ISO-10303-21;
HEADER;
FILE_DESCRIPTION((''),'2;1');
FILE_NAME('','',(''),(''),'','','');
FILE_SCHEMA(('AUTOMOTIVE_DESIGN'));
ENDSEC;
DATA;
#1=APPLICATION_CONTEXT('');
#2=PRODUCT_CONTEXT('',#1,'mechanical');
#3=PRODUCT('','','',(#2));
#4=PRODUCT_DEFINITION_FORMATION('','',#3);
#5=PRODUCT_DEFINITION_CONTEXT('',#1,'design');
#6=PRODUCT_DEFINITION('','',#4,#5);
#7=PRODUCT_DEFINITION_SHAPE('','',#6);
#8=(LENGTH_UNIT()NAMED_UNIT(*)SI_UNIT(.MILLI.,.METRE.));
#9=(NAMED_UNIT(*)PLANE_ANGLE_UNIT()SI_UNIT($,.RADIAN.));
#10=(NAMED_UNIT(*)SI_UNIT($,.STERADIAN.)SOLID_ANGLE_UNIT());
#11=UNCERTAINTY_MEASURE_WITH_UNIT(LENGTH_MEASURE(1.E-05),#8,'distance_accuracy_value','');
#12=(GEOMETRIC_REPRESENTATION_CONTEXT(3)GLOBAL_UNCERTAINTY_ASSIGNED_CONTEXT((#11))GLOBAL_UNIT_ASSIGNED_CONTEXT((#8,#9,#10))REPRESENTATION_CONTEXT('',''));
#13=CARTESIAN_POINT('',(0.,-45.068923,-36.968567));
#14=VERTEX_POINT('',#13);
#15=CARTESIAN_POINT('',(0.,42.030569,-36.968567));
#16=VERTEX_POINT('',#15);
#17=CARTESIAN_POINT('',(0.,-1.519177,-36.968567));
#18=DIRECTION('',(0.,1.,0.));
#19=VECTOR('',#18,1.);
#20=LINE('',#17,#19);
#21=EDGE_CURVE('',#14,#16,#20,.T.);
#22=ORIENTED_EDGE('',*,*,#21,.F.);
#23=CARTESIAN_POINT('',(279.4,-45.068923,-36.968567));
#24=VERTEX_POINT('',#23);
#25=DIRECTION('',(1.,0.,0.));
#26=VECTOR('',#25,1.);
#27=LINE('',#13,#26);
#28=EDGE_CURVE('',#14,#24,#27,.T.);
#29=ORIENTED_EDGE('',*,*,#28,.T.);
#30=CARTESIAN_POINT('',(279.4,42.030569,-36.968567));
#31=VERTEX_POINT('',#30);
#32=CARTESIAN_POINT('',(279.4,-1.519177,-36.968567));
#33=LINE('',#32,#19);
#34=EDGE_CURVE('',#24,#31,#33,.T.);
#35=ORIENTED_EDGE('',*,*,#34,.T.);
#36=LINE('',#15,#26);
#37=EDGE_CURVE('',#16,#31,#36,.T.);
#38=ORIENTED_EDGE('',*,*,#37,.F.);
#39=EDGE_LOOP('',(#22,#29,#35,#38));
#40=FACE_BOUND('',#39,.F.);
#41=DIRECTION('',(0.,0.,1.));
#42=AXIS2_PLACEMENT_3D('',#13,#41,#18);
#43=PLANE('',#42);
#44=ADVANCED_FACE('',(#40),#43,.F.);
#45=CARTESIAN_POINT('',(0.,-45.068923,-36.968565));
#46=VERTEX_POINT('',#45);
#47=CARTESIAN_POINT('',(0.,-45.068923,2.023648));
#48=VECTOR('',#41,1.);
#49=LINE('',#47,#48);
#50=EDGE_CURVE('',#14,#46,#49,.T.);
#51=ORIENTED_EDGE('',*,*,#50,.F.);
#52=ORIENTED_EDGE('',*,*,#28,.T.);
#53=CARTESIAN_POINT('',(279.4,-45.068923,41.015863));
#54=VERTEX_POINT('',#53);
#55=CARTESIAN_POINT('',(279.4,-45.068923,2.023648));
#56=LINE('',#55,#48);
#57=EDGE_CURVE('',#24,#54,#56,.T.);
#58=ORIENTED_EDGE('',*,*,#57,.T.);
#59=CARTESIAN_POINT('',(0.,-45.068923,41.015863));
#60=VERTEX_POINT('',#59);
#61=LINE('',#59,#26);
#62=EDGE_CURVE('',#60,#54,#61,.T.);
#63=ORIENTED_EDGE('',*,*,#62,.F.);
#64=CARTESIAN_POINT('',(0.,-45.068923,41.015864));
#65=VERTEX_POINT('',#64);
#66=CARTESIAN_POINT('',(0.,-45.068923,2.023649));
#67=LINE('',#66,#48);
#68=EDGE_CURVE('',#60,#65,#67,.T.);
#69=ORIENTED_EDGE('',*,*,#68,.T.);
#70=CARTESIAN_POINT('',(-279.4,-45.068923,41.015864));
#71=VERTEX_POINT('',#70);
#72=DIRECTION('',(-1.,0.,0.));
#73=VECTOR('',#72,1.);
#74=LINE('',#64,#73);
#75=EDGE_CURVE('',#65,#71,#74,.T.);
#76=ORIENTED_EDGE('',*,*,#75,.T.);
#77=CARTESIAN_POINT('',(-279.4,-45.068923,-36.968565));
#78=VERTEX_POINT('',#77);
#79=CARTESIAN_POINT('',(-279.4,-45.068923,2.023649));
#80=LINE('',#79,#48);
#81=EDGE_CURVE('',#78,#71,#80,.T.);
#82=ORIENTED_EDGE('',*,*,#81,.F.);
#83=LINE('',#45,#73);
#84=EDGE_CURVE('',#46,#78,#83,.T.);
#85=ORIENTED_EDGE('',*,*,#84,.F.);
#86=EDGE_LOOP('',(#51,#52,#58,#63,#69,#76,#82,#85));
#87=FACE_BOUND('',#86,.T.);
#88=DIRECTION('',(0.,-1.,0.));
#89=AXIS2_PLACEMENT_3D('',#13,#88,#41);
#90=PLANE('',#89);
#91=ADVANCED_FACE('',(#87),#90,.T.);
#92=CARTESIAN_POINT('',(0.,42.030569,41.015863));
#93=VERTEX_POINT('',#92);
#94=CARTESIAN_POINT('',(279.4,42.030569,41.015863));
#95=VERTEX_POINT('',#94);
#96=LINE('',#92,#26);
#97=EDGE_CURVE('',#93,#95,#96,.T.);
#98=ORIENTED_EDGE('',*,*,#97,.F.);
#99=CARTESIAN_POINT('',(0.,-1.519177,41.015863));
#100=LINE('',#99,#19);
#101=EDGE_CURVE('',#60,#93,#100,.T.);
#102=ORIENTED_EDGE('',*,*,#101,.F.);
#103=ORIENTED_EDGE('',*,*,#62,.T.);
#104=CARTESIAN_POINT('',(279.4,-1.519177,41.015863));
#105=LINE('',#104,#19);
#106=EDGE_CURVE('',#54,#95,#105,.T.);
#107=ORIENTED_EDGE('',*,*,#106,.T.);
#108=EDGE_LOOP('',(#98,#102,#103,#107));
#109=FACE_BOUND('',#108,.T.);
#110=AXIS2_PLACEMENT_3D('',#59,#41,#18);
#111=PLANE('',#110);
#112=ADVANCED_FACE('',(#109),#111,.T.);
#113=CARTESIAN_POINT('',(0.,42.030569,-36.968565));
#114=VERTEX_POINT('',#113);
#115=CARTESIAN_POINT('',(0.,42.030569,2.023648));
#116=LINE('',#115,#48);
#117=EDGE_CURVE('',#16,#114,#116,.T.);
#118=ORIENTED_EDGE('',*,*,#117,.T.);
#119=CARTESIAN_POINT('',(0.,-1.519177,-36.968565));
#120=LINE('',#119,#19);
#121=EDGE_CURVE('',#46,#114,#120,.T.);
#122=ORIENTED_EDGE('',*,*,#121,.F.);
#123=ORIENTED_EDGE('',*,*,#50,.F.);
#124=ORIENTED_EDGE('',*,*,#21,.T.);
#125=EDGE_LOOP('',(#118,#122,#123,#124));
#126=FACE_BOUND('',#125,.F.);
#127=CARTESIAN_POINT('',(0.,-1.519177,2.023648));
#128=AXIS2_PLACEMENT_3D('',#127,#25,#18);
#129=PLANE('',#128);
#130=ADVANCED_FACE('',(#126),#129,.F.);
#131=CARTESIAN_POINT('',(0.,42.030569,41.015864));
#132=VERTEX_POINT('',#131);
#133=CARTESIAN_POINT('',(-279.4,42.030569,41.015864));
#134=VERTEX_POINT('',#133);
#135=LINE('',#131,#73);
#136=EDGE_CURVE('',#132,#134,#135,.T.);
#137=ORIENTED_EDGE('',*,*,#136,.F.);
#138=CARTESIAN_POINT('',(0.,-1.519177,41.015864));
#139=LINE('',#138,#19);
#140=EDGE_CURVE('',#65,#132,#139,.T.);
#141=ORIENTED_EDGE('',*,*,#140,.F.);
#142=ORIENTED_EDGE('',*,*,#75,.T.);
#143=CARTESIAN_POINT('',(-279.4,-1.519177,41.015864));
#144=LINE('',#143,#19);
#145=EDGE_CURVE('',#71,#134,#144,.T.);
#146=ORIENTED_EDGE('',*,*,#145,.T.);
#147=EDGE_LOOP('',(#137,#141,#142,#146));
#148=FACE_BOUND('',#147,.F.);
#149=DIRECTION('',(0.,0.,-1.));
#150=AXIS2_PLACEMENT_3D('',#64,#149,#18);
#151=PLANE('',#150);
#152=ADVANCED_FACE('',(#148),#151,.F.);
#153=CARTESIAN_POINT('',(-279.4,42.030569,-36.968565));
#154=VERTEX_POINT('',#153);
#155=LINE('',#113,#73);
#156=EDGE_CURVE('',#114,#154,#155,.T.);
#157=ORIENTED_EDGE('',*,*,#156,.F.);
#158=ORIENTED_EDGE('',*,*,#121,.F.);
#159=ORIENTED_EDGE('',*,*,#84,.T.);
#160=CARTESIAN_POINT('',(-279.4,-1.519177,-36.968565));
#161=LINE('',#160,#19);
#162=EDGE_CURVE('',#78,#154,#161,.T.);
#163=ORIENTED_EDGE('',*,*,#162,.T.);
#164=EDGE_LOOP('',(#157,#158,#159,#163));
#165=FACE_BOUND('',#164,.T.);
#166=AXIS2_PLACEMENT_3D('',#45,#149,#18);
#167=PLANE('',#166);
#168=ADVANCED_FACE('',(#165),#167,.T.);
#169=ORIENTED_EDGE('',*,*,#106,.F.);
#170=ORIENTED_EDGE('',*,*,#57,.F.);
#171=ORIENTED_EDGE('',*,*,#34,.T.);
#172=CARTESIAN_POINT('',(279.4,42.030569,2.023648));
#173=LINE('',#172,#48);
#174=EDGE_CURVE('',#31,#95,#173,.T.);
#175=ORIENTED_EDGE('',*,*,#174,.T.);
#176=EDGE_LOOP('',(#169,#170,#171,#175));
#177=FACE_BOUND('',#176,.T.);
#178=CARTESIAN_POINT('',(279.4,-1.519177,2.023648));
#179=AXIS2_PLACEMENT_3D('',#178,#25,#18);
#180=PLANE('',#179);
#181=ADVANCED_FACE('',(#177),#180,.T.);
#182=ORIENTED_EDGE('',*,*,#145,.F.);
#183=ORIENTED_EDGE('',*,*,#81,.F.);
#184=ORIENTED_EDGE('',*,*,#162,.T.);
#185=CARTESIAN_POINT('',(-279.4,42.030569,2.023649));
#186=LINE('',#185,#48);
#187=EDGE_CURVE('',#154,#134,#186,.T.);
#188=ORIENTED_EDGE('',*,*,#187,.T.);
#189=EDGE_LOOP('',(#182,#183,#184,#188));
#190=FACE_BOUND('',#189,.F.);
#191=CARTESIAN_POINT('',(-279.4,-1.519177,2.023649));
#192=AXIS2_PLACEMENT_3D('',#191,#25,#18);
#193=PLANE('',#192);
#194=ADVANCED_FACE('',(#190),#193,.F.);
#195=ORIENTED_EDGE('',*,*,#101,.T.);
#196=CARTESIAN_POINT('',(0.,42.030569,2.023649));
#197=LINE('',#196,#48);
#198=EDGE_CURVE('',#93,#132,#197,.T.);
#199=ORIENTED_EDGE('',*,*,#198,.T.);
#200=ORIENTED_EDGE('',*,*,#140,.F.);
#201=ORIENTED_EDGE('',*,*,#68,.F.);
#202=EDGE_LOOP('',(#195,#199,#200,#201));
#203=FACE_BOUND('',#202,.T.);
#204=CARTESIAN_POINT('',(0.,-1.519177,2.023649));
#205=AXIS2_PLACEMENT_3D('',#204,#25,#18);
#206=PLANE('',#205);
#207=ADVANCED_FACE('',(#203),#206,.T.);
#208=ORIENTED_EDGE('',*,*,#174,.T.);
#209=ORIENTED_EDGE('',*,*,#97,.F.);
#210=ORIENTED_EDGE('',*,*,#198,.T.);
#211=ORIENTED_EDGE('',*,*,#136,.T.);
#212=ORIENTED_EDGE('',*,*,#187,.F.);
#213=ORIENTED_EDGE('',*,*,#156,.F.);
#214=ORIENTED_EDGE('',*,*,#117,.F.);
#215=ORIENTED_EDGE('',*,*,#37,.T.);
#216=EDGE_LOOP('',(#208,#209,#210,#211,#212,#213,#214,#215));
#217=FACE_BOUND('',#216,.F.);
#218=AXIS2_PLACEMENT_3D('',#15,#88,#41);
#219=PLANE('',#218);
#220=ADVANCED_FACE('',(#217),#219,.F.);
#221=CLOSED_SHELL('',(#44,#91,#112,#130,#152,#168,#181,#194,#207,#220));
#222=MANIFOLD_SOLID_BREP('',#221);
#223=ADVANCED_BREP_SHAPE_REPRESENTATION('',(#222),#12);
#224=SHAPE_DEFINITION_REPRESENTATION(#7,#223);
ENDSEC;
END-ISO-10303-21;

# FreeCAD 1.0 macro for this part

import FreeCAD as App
import Part
import Sketcher
Q = App.Units.Quantity

doc = App.newDocument("Part")
body = doc.addObject("PartDesign::Body", "Body")

# Sketch on YZ plane
sketch1 = body.newObject("Sketcher::SketchObject", "Sketch")
sketch1.AttachmentSupport = (doc.getObject("YZ_Plane"), [""])
sketch1.MapMode = "FlatFace"
sketch1.addGeometry([
    Part.LineSegment(App.Vector(-45, 41, 0), App.Vector(-45, -37, 0)),
    Part.LineSegment(App.Vector(-45, -37, 0), App.Vector(42, -37, 0)),
    Part.LineSegment(App.Vector(42, -37, 0), App.Vector(42, 41, 0)),
    Part.LineSegment(App.Vector(42, 41, 0), App.Vector(-45, 41, 0)),
], False)
sketch1.addConstraint([
    Sketcher.Constraint("Coincident", 0, 2, 1, 1),
    Sketcher.Constraint("Coincident", 1, 2, 2, 1),
    Sketcher.Constraint("Coincident", 2, 2, 3, 1),
    Sketcher.Constraint("Coincident", 3, 2, 0, 1),
    Sketcher.Constraint("Vertical", 0),
    Sketcher.Constraint("Horizontal", 1),
    Sketcher.Constraint("Vertical", 2),
    Sketcher.Constraint("Horizontal", 3),
    Sketcher.Constraint("DistanceX", 1, 1, 1, 2, 87.099492),
    Sketcher.Constraint("DistanceY", 0, 2, 0, 1, 77.984429),
    Sketcher.Constraint("DistanceX", -1, 1, 1, 2, 42.030569),
    Sketcher.Constraint("DistanceY", 0, 2, -1, 1, 36.968565),
])
pad1 = body.newObject("PartDesign::Pad", "Pad")
pad1.Profile = sketch1
pad1.Length = Q("11 in")
pad1.Reversed = True

# Sketch on YZ plane
sketch2 = body.newObject("Sketcher::SketchObject", "Sketch001")
sketch2.AttachmentSupport = (doc.getObject("YZ_Plane"), [""])
sketch2.MapMode = "FlatFace"
sketch2.addGeometry([
    Part.LineSegment(App.Vector(-45, 41, 0), App.Vector(-45, -37, 0)),
    Part.LineSegment(App.Vector(-45, -37, 0), App.Vector(42, -37, 0)),
    Part.LineSegment(App.Vector(42, -37, 0), App.Vector(42, 41, 0)),
    Part.LineSegment(App.Vector(42, 41, 0), App.Vector(-45, 41, 0)),
], False)
sketch2.addConstraint([
    Sketcher.Constraint("Coincident", 0, 2, 1, 1),
    Sketcher.Constraint("Coincident", 1, 2, 2, 1),
    Sketcher.Constraint("Coincident", 2, 2, 3, 1),
    Sketcher.Constraint("Coincident", 3, 2, 0, 1),
    Sketcher.Constraint("Vertical", 0),
    Sketcher.Constraint("Horizontal", 1),
    Sketcher.Constraint("Vertical", 2),
    Sketcher.Constraint("Horizontal", 3),
    Sketcher.Constraint("DistanceX", 1, 1, 1, 2, 87.099492),
    Sketcher.Constraint("DistanceY", 0, 2, 0, 1, 77.98443),
    Sketcher.Constraint("DistanceX", -1, 1, 1, 2, 42.030569),
    Sketcher.Constraint("DistanceY", 0, 2, -1, 1, 36.968567),
])
pad2 = body.newObject("PartDesign::Pad", "Pad001")
pad2.Profile = sketch2
pad2.Length = Q("11 in")

doc.recompute()
